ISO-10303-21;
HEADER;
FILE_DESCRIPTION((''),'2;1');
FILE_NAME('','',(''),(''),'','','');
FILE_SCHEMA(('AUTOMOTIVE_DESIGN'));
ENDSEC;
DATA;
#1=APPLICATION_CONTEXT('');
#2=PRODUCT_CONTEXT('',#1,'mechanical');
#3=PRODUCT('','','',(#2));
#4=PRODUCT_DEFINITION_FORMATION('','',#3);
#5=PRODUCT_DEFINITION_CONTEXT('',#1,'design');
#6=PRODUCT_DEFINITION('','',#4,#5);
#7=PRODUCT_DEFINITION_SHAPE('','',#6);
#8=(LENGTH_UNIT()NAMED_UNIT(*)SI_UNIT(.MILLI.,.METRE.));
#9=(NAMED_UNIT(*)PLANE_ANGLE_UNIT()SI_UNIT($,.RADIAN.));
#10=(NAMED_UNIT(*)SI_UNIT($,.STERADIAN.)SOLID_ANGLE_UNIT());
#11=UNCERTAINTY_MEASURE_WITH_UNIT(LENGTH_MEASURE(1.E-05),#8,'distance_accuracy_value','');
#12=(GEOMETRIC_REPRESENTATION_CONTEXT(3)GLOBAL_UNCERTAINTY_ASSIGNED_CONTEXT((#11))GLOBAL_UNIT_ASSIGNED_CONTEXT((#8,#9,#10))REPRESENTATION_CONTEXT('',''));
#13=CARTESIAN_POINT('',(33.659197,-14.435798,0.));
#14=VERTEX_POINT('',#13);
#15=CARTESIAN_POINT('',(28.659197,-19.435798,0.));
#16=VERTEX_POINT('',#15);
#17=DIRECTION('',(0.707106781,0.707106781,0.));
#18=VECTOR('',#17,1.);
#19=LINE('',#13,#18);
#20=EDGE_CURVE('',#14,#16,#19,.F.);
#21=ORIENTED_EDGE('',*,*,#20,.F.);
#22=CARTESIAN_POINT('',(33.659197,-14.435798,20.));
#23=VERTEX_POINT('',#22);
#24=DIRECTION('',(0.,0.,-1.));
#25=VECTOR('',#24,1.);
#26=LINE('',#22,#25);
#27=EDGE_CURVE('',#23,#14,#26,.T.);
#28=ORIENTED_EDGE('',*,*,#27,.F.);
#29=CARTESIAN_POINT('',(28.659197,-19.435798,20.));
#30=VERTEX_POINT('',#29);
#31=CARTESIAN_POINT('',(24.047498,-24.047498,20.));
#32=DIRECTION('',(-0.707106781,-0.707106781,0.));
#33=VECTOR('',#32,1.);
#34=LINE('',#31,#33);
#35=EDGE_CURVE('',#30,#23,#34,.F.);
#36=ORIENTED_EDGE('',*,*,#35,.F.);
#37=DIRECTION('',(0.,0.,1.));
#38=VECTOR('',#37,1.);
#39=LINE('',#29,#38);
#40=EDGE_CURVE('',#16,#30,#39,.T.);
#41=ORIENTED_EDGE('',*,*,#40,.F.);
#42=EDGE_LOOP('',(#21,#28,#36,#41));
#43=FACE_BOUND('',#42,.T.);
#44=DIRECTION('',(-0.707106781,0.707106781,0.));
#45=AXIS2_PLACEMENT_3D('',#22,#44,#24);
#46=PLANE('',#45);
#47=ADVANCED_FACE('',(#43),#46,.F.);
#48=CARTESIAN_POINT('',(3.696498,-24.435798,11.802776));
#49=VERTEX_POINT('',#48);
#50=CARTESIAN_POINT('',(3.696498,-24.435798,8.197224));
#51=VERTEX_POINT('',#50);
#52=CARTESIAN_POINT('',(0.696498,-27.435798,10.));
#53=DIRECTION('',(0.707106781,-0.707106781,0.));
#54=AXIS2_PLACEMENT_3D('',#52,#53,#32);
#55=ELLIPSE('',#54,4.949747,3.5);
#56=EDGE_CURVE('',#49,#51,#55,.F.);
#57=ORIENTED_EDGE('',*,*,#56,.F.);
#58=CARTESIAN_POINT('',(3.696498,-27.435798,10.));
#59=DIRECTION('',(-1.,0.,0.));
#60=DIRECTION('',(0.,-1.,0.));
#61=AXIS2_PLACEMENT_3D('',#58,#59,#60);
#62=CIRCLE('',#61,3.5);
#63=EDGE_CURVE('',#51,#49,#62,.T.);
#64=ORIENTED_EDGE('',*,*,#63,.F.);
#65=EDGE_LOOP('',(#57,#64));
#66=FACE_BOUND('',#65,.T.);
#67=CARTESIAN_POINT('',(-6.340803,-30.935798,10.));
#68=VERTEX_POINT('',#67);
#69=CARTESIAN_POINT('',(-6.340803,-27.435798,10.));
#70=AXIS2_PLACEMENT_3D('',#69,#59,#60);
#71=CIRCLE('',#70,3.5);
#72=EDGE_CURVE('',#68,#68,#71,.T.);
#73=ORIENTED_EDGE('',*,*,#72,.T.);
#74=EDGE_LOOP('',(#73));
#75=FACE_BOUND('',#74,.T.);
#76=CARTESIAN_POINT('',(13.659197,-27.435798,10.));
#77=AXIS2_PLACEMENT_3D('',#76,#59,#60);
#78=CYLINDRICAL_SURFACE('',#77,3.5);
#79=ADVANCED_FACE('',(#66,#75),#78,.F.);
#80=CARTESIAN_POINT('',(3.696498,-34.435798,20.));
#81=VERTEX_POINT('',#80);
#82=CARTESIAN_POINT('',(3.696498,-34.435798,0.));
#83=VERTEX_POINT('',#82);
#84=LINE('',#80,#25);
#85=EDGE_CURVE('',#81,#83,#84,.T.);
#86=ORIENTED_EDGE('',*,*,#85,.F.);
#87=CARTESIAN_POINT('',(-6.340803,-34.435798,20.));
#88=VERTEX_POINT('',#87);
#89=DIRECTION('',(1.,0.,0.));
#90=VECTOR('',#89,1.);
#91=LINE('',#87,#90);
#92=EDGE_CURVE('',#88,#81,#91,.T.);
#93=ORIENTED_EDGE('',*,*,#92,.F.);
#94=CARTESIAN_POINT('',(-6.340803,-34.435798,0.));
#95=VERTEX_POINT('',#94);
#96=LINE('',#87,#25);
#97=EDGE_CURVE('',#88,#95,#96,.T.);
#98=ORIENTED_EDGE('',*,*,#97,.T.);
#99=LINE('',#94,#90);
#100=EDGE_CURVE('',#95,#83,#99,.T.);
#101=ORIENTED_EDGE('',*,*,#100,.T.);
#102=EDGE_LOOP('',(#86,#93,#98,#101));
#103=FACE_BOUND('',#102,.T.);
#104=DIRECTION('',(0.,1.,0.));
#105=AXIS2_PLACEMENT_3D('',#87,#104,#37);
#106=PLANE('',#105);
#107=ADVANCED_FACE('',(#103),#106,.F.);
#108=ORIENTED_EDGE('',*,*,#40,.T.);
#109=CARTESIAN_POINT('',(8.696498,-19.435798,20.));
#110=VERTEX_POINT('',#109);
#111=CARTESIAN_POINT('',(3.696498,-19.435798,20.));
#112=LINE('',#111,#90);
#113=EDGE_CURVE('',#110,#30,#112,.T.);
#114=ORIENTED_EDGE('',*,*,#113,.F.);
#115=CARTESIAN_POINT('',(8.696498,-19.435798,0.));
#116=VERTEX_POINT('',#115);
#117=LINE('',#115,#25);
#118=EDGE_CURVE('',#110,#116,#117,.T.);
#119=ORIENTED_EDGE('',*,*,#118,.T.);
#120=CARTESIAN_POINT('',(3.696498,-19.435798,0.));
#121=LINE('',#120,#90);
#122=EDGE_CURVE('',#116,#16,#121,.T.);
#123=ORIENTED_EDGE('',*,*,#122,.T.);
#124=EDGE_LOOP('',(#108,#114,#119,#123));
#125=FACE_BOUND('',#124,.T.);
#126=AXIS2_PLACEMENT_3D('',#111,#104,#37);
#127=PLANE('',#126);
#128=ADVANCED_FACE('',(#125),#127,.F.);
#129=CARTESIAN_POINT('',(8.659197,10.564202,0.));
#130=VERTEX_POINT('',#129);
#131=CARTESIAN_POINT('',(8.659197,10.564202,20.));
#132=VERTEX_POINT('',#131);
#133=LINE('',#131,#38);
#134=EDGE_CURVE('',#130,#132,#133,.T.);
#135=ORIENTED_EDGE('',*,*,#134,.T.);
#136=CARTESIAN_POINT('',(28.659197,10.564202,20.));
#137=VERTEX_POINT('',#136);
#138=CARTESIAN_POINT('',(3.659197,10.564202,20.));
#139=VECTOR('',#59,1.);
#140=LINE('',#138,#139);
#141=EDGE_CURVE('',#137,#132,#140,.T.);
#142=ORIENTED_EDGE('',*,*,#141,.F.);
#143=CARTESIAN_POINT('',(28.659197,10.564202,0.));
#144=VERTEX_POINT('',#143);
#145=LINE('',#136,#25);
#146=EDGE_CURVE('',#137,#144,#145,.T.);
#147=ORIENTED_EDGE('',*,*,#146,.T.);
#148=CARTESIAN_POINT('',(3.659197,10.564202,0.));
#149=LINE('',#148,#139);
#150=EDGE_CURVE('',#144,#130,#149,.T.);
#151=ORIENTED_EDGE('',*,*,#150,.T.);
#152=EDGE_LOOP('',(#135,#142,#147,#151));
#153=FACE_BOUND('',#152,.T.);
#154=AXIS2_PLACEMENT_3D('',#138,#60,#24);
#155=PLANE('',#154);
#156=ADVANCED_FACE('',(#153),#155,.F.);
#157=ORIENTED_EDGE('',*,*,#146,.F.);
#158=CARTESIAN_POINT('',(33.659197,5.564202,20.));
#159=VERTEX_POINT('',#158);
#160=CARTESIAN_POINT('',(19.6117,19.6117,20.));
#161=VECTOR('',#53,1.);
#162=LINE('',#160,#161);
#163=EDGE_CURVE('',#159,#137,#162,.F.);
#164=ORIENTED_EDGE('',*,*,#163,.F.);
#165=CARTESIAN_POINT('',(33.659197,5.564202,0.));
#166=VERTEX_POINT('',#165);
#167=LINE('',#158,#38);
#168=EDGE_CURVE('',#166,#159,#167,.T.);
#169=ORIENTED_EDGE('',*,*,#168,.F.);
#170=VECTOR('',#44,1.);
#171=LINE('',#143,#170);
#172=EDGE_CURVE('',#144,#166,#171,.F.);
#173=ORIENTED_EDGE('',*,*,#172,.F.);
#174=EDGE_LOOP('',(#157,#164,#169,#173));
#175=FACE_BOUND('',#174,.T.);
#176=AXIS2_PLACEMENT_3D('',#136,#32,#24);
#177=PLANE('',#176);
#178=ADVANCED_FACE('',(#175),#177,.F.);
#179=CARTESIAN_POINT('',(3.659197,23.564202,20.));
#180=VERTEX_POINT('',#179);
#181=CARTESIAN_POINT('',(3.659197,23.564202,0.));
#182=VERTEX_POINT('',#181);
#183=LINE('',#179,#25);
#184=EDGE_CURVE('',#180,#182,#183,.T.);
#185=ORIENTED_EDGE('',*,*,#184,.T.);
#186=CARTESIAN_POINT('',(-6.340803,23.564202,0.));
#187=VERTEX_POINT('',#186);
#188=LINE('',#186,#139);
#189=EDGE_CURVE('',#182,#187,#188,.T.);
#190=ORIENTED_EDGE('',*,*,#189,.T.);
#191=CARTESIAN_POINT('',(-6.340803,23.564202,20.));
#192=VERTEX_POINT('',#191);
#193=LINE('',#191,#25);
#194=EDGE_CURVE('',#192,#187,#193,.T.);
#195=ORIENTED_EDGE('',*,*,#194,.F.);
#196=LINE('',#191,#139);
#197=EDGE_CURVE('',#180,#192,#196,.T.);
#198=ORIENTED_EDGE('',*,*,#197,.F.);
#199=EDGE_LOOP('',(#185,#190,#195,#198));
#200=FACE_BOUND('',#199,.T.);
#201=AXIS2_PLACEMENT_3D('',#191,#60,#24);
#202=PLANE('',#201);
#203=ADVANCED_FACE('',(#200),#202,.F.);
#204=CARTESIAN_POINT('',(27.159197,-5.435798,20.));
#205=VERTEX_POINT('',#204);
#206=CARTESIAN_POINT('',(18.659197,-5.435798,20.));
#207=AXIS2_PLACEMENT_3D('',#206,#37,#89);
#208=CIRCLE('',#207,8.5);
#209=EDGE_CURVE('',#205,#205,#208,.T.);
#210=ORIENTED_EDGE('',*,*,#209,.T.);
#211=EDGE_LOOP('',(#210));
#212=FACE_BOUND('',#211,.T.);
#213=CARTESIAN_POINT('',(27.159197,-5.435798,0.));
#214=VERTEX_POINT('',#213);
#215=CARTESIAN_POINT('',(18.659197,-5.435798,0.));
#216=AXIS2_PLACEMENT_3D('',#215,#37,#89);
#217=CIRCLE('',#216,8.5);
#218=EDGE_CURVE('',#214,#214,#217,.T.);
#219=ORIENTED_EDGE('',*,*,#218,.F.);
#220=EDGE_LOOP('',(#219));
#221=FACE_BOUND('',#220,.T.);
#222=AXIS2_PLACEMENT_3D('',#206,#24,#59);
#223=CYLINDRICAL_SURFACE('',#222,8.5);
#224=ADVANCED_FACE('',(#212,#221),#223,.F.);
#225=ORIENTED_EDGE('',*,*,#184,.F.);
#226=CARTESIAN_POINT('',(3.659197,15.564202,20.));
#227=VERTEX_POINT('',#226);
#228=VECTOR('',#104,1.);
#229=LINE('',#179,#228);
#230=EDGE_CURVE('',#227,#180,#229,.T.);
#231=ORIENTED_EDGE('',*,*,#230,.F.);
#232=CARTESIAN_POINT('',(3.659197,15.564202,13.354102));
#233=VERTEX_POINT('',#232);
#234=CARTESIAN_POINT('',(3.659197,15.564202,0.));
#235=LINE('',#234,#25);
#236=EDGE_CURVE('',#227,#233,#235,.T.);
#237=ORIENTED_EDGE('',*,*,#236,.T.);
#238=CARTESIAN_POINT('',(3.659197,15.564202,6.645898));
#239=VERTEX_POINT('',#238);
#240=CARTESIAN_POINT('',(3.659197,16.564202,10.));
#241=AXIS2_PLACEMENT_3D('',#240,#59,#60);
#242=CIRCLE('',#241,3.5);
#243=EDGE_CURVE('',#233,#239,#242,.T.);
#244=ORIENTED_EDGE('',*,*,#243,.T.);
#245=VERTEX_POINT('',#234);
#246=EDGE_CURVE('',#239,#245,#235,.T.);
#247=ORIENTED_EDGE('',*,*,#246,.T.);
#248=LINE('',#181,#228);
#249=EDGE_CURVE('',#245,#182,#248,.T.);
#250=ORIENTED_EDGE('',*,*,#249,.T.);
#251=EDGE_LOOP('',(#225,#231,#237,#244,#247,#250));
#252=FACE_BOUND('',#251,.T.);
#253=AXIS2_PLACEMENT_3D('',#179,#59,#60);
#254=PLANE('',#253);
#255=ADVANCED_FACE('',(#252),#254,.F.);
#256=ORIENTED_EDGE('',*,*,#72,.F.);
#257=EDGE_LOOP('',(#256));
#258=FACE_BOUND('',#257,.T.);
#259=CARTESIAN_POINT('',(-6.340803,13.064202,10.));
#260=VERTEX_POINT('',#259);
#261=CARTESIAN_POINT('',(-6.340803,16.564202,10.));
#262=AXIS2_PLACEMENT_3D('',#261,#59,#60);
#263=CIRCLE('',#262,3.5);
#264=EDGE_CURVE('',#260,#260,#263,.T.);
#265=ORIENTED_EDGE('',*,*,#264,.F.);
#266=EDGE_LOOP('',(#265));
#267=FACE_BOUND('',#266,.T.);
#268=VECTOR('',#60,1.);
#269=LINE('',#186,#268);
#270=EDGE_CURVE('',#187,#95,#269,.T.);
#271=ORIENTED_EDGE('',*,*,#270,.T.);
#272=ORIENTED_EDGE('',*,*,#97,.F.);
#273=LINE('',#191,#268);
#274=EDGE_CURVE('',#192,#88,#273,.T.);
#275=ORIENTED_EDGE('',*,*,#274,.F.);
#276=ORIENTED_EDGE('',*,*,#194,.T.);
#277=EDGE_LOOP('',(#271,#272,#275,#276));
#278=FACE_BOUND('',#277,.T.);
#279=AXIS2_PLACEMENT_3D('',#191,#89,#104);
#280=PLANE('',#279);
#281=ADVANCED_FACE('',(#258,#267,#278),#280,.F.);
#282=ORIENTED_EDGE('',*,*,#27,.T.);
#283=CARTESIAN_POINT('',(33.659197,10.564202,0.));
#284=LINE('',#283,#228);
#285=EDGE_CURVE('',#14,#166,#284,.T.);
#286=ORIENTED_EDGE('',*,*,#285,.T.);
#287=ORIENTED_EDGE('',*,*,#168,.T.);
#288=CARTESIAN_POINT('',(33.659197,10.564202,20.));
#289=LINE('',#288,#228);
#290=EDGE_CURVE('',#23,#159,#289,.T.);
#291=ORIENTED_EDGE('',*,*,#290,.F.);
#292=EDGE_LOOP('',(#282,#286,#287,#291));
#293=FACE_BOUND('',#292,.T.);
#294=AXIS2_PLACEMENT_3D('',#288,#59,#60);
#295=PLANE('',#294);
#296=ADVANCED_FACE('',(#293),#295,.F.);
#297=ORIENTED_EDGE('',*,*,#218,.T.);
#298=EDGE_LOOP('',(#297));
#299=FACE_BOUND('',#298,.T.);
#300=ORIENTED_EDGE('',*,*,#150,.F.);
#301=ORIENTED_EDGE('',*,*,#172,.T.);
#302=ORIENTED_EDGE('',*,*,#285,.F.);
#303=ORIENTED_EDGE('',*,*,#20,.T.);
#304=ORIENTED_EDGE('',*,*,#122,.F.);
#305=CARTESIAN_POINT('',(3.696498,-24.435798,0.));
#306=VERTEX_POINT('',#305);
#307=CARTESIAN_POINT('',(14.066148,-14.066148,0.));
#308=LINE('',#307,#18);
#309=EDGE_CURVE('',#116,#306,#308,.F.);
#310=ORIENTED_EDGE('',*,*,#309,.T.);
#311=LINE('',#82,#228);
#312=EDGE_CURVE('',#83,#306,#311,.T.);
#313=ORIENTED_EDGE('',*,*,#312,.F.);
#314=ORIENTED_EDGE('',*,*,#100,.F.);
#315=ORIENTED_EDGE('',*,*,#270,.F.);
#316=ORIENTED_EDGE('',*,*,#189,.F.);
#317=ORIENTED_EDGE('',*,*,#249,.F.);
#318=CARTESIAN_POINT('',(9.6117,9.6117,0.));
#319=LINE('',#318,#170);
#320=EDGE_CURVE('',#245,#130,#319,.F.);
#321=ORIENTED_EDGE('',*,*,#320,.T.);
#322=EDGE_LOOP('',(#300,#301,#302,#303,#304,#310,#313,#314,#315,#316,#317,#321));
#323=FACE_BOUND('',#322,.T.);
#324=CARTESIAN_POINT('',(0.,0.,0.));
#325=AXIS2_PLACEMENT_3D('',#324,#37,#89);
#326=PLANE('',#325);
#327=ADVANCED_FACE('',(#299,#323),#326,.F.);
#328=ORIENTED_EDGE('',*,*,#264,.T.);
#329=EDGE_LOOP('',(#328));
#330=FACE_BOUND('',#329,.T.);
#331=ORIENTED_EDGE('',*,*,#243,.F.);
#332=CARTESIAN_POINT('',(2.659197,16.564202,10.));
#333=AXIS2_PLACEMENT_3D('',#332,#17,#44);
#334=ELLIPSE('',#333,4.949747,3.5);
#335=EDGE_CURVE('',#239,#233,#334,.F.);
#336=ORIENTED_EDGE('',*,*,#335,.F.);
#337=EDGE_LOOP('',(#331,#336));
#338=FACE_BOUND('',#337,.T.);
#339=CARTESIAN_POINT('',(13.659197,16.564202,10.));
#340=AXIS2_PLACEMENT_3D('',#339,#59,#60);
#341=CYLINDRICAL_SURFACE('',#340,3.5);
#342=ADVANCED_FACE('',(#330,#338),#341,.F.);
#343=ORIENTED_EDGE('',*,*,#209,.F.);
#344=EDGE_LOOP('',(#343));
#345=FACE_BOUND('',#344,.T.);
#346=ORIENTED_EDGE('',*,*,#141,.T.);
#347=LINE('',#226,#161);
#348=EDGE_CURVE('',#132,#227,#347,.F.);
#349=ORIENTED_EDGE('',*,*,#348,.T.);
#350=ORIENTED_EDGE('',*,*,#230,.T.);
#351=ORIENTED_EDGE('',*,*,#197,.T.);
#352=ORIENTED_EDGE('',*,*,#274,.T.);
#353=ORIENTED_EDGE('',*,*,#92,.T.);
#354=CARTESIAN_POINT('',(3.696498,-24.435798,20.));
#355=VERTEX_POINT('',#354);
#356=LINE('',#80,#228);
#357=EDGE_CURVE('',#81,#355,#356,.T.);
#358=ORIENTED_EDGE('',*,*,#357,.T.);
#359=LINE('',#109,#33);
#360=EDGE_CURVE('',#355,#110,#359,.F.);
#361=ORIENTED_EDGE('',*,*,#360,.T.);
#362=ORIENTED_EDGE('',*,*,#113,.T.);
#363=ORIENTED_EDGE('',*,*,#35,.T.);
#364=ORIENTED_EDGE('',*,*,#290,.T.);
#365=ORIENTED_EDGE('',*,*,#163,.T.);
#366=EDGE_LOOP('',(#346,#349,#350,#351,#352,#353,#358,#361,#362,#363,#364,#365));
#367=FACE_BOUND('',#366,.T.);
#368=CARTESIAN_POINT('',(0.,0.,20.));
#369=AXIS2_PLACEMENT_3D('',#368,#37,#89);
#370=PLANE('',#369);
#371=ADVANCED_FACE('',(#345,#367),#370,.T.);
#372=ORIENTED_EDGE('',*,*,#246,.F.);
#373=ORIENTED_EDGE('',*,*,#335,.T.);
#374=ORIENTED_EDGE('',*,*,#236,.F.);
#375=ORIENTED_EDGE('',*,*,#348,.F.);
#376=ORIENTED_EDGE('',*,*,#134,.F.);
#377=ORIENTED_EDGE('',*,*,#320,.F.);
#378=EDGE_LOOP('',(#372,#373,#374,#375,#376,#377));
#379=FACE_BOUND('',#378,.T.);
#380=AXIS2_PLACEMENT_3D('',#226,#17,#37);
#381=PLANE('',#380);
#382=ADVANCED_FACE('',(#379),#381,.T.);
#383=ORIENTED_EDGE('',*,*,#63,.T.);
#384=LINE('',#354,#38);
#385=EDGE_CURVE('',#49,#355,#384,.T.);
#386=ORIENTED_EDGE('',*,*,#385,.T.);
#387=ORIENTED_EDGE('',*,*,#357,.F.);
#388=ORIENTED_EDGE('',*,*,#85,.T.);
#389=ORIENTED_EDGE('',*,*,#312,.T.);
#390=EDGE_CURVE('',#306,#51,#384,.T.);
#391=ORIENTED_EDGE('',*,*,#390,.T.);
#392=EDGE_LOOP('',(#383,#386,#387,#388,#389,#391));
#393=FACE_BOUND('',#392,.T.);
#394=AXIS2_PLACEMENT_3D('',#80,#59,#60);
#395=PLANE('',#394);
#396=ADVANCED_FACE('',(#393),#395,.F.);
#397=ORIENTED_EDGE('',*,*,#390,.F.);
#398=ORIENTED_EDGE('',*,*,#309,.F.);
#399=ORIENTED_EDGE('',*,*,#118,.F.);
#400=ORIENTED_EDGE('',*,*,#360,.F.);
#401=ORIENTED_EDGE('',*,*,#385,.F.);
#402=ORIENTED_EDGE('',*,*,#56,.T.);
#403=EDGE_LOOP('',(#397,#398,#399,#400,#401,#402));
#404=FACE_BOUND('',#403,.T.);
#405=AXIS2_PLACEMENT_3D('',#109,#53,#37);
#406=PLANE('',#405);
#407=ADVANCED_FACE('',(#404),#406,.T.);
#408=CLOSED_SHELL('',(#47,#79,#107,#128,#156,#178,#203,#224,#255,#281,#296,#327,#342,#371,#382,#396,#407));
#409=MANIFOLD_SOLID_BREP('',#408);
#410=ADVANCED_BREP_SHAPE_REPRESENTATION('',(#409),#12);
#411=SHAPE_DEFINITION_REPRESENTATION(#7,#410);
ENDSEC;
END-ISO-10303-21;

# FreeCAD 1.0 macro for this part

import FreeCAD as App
import Part
import Sketcher
Q = App.Units.Quantity


def edges_at(feature, points):
    """Names of the edges that pass closest to the given points."""
    edges = feature.Shape.Edges
    near = lambda p: min(range(len(edges)), key=lambda i: edges[i].distToShape(Part.Vertex(*p))[0])
    return sorted({f"Edge{near(p) + 1}" for p in points})


def add_polygon(sketch, points):
    """Adds a closed chain of lines whose ends are joined by coincident constraints."""
    first, n = sketch.GeometryCount, len(points)
    for a, b in zip(points, points[1:] + points[:1]):
        sketch.addGeometry(Part.LineSegment(App.Vector(*a, 0), App.Vector(*b, 0)), False)
    for i in range(n):
        sketch.addConstraint(Sketcher.Constraint("Coincident", first + i, 2, first + (i + 1) % n, 1))

doc = App.newDocument("Part")
params = doc.addObject("Spreadsheet::Sheet", "Params")
for row, (alias, value) in enumerate([
    ("sketch1_diameter", "17 mm"),
    ("sketch1_width", "30 mm"),
    ("sketch1_width2", "10 mm"),
    ("sketch1_height", "15 mm"),
    ("sketch1_height2", "13 mm"),
    ("pad1_length", "20 mm"),
    ("chamfer_size", "5 mm"),
    ("sketch2_diameter", "7 mm"),
    ("pocket1_length", "20 mm"),
    ("linearpattern_pitch", "44 mm"),
], start=1):
    params.set(f"A{row}", alias)
    params.set(f"B{row}", "=" + value)
    params.setAlias(f"B{row}", alias)

body = doc.addObject("PartDesign::Body", "Body")

# Sketch on XY plane
sketch1 = body.newObject("Sketcher::SketchObject", "Sketch")
sketch1.AttachmentSupport = (doc.getObject("XY_Plane"), [""])
sketch1.MapMode = "FlatFace"
add_polygon(sketch1, [(4, -34), (4, -19), (34, -19), (34, 11), (4, 11), (4, 24), (-6, 24), (-6, -34)])  # lines 0-7
sketch1.addGeometry(Part.Circle(App.Vector(19, -5, 0), App.Vector(0, 0, 1), 8), False)  # 8
sketch1.addConstraint([
    Sketcher.Constraint("Vertical", 0),
    Sketcher.Constraint("Horizontal", 1),
    Sketcher.Constraint("Vertical", 2),
    Sketcher.Constraint("Horizontal", 3),
    Sketcher.Constraint("Vertical", 4),
    Sketcher.Constraint("Horizontal", 5),
    Sketcher.Constraint("Vertical", 6),
    Sketcher.Constraint("Horizontal", 7),
    Sketcher.Constraint("Equal", 3, 2),
    Sketcher.Constraint("Diameter", 8, Q("17 mm")),
    Sketcher.Constraint("DistanceX", 3, 2, 3, 1, Q("30 mm")),
    Sketcher.Constraint("DistanceX", 5, 2, 5, 1, Q("10 mm")),
    Sketcher.Constraint("DistanceY", 0, 1, 0, 2, Q("15 mm")),
    Sketcher.Constraint("DistanceY", 4, 1, 4, 2, Q("13 mm")),
    Sketcher.Constraint("DistanceY", 0, 2, 8, 3, Q("14 mm")),
    Sketcher.Constraint("DistanceX", 8, 3, 1, 2, Q("15 mm")),
    Sketcher.Constraint("DistanceX", 1, 1, 1, 2, Q("29.962699 mm")),
    Sketcher.Constraint("DistanceX", -1, 1, 0, 2, Q("3.696498 mm")),
    Sketcher.Constraint("DistanceY", 8, 3, -1, 1, Q("5.435798 mm")),
])
sketch1.setExpression("Constraints[17]", "Params.sketch1_diameter")
sketch1.setExpression("Constraints[18]", "Params.sketch1_width")
sketch1.setExpression("Constraints[19]", "Params.sketch1_width2")
sketch1.setExpression("Constraints[20]", "Params.sketch1_height")
sketch1.setExpression("Constraints[21]", "Params.sketch1_height2")
pad1 = body.newObject("PartDesign::Pad", "Pad")
pad1.Profile = sketch1
pad1.setExpression("Length", "Params.pad1_length")
doc.recompute()

chamfer = body.newObject("PartDesign::Chamfer", "Chamfer")
chamfer.Base = (pad1, edges_at(pad1, [
    (3.659, 10.564, 10),
    (33.659, 10.564, 10),
    (33.659, -19.436, 10),
    (3.696, -19.436, 10),
]))
chamfer.setExpression("Size", "Params.chamfer_size")

# Sketch on YZ plane
sketch2 = body.newObject("Sketcher::SketchObject", "Sketch001")
sketch2.AttachmentSupport = (doc.getObject("YZ_Plane"), [""])
sketch2.MapMode = "FlatFace"
sketch2.AttachmentOffset = App.Placement(App.Vector(0, 0, -6.340803), App.Rotation())
sketch2.addGeometry(Part.Circle(App.Vector(16.6, 10, 0), App.Vector(0, 0, 1), 3.5), False)
sketch2.addConstraint([
    Sketcher.Constraint("Diameter", 0, Q("7 mm")),
    Sketcher.Constraint("DistanceY", -1, 1, 0, 3, Q("10 mm")),
    Sketcher.Constraint("DistanceX", -1, 1, 0, 3, Q("16.564202 mm")),
])
sketch2.setExpression("Constraints[0]", "Params.sketch2_diameter")
pocket1 = body.newObject("PartDesign::Pocket", "Pocket")
pocket1.Profile = sketch2
pocket1.setExpression("Length", "Params.pocket1_length")
pocket1.Reversed = True
doc.recompute()

linearpattern = body.newObject("PartDesign::LinearPattern", "LinearPattern")
linearpattern.Originals = [pocket1]
linearpattern.Direction = (doc.getObject("Y_Axis"), [""])
linearpattern.Mode = "offset"
linearpattern.setExpression("Offset", "Params.linearpattern_pitch")
linearpattern.Occurrences = 200
linearpattern.Reversed = True
body.Tip = linearpattern

doc.recompute()
